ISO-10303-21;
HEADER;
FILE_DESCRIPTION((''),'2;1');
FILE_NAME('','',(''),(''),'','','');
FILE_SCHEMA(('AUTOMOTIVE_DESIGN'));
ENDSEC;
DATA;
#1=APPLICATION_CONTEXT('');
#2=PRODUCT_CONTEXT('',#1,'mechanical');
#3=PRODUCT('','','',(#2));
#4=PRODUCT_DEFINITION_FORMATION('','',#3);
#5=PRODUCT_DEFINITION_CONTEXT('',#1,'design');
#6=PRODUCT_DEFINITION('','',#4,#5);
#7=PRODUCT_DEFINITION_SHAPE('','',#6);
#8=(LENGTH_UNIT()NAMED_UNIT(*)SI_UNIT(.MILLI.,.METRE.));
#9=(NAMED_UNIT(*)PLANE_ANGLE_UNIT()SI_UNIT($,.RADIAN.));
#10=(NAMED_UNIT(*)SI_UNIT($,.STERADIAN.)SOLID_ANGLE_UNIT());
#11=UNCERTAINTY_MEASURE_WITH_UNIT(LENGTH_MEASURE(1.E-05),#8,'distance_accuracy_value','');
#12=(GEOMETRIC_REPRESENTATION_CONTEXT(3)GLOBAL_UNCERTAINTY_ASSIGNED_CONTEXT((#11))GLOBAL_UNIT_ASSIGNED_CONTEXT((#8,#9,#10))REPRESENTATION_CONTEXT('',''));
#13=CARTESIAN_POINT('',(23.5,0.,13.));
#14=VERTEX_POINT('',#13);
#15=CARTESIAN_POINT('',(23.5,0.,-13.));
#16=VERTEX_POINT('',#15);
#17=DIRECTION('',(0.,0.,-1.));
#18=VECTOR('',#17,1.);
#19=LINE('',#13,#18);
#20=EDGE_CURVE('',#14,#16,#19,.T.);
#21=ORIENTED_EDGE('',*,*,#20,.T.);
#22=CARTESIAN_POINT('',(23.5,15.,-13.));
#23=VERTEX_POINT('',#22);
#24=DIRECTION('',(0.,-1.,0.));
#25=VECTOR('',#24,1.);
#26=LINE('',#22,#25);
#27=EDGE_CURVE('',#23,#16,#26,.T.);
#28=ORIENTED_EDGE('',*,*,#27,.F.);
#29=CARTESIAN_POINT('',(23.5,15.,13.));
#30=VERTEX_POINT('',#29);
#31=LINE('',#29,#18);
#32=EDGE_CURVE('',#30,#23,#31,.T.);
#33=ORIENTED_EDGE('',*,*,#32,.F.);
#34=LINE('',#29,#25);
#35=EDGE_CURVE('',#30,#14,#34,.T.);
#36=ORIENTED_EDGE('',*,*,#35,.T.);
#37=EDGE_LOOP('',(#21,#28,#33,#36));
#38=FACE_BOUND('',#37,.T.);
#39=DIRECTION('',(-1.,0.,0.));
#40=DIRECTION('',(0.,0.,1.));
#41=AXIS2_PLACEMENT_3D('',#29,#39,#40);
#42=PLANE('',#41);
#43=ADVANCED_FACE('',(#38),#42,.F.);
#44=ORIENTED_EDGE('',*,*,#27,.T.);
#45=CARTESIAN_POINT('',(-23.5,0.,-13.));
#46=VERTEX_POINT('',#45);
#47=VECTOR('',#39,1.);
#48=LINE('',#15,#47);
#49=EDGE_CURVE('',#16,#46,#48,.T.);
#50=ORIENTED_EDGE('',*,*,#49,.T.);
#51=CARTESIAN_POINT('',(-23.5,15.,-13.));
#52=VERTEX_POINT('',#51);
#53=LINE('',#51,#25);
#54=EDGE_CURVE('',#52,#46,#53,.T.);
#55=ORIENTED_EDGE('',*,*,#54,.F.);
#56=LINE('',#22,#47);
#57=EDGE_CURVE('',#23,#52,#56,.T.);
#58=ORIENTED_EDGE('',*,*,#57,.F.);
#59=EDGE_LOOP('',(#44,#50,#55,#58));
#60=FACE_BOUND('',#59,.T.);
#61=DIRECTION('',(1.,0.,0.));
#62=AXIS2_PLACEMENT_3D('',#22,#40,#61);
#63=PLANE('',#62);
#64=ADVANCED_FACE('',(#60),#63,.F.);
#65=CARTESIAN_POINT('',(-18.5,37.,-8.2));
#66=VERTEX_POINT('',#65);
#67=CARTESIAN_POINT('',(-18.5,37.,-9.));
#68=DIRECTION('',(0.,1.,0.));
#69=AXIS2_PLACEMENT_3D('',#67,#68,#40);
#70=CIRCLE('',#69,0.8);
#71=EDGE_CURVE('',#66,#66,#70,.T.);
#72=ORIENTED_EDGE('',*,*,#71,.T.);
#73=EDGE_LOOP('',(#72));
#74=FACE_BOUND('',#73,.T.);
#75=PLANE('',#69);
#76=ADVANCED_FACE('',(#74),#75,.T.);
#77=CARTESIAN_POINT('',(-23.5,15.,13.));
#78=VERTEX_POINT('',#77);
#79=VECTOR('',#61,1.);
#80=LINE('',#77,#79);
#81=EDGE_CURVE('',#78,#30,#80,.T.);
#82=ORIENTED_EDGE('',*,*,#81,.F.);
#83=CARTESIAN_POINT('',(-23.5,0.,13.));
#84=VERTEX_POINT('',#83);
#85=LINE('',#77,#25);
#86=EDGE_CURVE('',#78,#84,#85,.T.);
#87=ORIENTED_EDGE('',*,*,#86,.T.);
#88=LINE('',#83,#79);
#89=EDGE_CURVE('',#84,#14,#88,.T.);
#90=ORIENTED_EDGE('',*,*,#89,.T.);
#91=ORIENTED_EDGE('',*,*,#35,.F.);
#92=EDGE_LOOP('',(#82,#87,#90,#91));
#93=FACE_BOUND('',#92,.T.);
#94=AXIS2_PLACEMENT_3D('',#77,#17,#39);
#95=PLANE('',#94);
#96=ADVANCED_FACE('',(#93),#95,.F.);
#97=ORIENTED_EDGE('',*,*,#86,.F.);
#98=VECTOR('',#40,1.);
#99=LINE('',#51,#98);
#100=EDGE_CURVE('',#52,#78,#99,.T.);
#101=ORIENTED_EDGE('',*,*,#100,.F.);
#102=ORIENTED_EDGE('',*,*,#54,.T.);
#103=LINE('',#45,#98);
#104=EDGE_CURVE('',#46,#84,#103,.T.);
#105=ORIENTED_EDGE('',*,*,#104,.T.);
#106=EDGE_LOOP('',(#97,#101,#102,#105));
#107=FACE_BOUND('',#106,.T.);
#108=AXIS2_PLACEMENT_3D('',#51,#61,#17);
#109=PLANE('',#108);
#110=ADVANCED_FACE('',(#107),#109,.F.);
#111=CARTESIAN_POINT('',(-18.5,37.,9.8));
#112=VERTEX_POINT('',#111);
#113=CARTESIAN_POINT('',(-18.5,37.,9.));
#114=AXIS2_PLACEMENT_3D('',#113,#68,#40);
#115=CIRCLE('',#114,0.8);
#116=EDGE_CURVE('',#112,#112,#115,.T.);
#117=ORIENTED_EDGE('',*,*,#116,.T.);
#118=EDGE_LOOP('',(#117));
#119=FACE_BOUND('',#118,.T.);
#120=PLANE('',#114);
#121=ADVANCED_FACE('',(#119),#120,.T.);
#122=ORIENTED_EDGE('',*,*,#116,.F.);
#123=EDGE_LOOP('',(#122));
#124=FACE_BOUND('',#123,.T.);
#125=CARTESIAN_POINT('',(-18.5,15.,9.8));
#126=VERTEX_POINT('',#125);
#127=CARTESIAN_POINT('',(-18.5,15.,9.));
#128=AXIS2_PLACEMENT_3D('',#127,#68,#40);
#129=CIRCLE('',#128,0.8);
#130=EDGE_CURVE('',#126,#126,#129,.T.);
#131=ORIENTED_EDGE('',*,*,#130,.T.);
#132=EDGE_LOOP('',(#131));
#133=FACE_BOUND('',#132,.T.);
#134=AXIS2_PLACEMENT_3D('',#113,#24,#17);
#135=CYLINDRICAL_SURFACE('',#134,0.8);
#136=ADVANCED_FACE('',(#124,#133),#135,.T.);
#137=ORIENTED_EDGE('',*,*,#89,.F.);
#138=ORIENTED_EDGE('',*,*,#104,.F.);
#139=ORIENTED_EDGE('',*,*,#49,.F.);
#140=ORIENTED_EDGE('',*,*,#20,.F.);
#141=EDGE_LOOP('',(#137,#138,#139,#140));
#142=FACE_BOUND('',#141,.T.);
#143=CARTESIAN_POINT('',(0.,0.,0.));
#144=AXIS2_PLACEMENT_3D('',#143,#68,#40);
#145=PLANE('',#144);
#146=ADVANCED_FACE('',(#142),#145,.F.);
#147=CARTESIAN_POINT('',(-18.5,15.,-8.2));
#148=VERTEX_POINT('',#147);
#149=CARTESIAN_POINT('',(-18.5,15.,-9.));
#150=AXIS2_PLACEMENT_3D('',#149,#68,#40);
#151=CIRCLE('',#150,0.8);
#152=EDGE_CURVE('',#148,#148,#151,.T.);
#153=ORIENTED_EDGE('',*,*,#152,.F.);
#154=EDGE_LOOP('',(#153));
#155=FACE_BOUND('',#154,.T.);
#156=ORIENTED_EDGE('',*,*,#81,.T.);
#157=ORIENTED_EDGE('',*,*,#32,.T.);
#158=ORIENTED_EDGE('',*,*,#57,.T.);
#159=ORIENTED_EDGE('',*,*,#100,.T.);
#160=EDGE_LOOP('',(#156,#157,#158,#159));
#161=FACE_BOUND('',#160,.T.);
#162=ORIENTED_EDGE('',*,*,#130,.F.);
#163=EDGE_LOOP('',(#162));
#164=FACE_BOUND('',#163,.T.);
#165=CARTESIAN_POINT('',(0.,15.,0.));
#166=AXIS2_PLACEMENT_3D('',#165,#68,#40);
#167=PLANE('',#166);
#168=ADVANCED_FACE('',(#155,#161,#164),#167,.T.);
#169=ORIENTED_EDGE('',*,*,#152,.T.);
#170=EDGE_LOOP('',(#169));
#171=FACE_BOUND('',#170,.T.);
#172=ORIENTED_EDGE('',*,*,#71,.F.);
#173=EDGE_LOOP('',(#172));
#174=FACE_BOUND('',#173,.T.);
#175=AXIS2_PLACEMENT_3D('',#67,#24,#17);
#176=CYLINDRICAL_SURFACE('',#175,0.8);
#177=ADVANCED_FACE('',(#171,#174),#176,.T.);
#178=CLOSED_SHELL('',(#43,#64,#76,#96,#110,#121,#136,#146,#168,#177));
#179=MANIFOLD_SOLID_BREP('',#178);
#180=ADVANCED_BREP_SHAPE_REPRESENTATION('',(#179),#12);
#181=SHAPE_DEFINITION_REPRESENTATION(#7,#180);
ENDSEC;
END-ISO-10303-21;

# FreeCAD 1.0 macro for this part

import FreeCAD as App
import Part
import Sketcher

V = App.Vector

doc = App.newDocument("Part")
body = doc.addObject("PartDesign::Body", "Body")

# Sketch on XZ plane
sketch1 = body.newObject("Sketcher::SketchObject", "Sketch")
sketch1.AttachmentSupport = (doc.getObject("XZ_Plane"), [""])
sketch1.MapMode = "FlatFace"
sketch1.addGeometry([
    Part.LineSegment(V(-24, -13, 0), V(-24, 13, 0)),
    Part.LineSegment(V(-24, 13, 0), V(24, 13, 0)),
    Part.LineSegment(V(24, 13, 0), V(24, -13, 0)),
    Part.LineSegment(V(24, -13, 0), V(-24, -13, 0)),
], False)
sketch1.addConstraint([
    Sketcher.Constraint("Coincident", 0, 2, 1, 1),
    Sketcher.Constraint("Coincident", 1, 2, 2, 1),
    Sketcher.Constraint("Coincident", 2, 2, 3, 1),
    Sketcher.Constraint("Coincident", 3, 2, 0, 1),
    Sketcher.Constraint("Vertical", 0),
    Sketcher.Constraint("Horizontal", 1),
    Sketcher.Constraint("Vertical", 2),
    Sketcher.Constraint("Horizontal", 3),
    Sketcher.Constraint("Symmetric", 0, 2, 2, 2, -1, 1),
    Sketcher.Constraint("DistanceX", 1, 1, 1, 2, 47.0),
    Sketcher.Constraint("DistanceY", 0, 1, 0, 2, 26.0),
])
pad1 = body.newObject("PartDesign::Pad", "Pad")
pad1.Profile = sketch1
pad1.Length = 15
pad1.Reversed = True

# Sketch on XZ plane
sketch2 = body.newObject("Sketcher::SketchObject", "Sketch001")
sketch2.AttachmentSupport = (doc.getObject("XZ_Plane"), [""])
sketch2.MapMode = "FlatFace"
sketch2.AttachmentOffset = App.Placement(V(0, 0, -15), App.Rotation())
sketch2.addGeometry(Part.Circle(V(-18.5, -9, 0), V(0, 0, 1), 0.8), False)
sketch2.addConstraint([
    Sketcher.Constraint("Diameter", 0, 1.6),
    Sketcher.Constraint("DistanceY", 0, 3, -1, 1, 9.0),
    Sketcher.Constraint("DistanceX", 0, 3, -1, 1, 18.5),
])
pad2 = body.newObject("PartDesign::Pad", "Pad001")
pad2.Profile = sketch2
pad2.Length = 22
pad2.Reversed = True

# Sketch on XZ plane
sketch3 = body.newObject("Sketcher::SketchObject", "Sketch002")
sketch3.AttachmentSupport = (doc.getObject("XZ_Plane"), [""])
sketch3.MapMode = "FlatFace"
sketch3.AttachmentOffset = App.Placement(V(0, 0, -15), App.Rotation())
sketch3.addGeometry(Part.Circle(V(-18.5, 9, 0), V(0, 0, 1), 0.8), False)
sketch3.addConstraint([
    Sketcher.Constraint("Diameter", 0, 1.6),
    Sketcher.Constraint("DistanceY", -1, 1, 0, 3, 9.0),
    Sketcher.Constraint("DistanceX", 0, 3, -1, 1, 18.5),
])
pad3 = body.newObject("PartDesign::Pad", "Pad002")
pad3.Profile = sketch3
pad3.Length = 22
pad3.Reversed = True

doc.recompute()
